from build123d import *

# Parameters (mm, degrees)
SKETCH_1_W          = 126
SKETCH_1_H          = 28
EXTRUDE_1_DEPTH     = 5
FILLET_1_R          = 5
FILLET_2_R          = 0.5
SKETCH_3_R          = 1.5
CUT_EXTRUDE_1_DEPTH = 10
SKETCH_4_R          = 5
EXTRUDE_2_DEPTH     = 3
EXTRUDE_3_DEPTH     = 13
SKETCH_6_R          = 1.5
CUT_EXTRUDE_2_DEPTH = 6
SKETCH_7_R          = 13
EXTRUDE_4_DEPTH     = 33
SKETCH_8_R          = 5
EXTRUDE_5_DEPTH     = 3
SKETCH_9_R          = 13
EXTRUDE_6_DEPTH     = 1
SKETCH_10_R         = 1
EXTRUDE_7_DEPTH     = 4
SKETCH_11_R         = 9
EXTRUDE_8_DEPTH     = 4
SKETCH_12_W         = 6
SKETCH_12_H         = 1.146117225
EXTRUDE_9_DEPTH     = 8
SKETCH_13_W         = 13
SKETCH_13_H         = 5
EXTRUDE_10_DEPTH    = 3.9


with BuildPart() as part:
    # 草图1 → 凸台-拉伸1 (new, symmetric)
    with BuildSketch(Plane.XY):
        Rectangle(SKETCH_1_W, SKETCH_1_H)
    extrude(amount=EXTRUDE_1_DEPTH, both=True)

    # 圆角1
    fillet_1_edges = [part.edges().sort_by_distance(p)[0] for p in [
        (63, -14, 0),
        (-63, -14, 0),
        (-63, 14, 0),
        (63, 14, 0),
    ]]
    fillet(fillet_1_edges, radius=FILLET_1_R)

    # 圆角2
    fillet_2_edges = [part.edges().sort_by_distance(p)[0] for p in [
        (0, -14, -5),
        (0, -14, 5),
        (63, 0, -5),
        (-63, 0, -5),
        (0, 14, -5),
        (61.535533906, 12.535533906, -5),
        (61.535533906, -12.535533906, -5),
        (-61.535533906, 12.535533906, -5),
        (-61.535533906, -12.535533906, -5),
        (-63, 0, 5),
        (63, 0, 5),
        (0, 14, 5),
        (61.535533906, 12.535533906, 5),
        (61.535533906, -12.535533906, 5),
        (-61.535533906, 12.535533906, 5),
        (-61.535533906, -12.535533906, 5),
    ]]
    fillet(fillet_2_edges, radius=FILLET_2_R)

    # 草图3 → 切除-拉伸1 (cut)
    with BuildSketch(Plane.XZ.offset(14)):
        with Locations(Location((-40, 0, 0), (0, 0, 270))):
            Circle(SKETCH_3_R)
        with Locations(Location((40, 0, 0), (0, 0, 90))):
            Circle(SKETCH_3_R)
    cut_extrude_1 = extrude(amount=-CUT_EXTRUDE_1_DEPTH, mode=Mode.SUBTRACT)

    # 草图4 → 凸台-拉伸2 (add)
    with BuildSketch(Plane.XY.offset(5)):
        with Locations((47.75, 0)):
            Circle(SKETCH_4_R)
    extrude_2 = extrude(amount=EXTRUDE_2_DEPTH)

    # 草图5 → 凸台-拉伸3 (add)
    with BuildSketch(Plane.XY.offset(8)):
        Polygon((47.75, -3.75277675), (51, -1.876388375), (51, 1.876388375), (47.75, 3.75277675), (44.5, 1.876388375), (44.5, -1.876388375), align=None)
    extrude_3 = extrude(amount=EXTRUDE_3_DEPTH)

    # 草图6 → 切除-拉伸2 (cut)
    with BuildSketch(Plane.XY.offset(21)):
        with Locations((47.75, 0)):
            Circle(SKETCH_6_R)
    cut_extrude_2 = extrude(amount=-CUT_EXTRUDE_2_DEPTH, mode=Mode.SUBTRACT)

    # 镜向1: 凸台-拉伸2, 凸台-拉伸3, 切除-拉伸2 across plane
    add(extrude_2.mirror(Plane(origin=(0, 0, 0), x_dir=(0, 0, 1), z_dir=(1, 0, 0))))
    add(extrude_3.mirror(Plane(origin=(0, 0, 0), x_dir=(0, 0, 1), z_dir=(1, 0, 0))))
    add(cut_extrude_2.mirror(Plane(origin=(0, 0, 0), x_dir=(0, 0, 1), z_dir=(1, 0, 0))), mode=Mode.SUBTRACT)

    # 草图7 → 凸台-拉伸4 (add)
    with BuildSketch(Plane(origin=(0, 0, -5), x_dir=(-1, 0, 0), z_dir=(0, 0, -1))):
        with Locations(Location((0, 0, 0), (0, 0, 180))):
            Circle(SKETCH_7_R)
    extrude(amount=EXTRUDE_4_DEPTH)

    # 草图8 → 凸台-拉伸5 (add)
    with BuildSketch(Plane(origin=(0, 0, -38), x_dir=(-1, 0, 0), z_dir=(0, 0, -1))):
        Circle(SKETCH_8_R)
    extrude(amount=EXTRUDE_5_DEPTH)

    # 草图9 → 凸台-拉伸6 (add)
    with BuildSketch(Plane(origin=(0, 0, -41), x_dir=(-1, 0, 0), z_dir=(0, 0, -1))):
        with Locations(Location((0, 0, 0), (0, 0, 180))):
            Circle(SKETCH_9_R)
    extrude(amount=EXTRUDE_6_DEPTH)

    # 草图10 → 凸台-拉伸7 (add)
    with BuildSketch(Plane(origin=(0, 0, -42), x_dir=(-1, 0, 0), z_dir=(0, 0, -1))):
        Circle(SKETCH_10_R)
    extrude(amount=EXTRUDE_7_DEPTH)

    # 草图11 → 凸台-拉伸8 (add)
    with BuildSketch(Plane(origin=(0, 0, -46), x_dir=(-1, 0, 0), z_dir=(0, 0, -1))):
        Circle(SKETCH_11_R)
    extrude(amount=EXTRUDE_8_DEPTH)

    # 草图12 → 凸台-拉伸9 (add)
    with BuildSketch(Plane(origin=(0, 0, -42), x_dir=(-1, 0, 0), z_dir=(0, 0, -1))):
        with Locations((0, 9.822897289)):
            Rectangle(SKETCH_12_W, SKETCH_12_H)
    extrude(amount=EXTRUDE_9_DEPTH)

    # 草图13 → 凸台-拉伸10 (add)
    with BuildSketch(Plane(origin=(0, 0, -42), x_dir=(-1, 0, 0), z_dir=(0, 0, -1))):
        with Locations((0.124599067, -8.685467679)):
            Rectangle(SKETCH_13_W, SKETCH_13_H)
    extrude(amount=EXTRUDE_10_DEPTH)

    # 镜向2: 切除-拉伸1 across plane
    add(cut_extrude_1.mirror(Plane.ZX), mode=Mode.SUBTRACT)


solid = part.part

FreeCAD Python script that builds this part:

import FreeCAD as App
import Part
import Sketcher
Q = App.Units.Quantity


def edges_at(feature, points):
    """Names of the edges that pass closest to the given points."""
    edges = feature.Shape.Edges
    near = lambda p: min(range(len(edges)), key=lambda i: edges[i].distToShape(Part.Vertex(*p))[0])
    return sorted({f"Edge{near(p) + 1}" for p in points})


def add_polygon(sketch, points):
    """Adds a closed chain of lines whose ends are joined by coincident constraints."""
    first, n = sketch.GeometryCount, len(points)
    for a, b in zip(points, points[1:] + points[:1]):
        sketch.addGeometry(Part.LineSegment(App.Vector(*a, 0), App.Vector(*b, 0)), False)
    for i in range(n):
        sketch.addConstraint(Sketcher.Constraint("Coincident", first + i, 2, first + (i + 1) % n, 1))

doc = App.newDocument("Part")
body = doc.addObject("PartDesign::Body", "Body")

# Sketch on XY plane
sketch1 = body.newObject("Sketcher::SketchObject", "Sketch")
sketch1.AttachmentSupport = (doc.getObject("XY_Plane"), [""])
sketch1.MapMode = "FlatFace"
add_polygon(sketch1, [(-63, 14), (-63, -14), (63, -14), (63, 14)])  # lines 0-3
sketch1.addConstraint([
    Sketcher.Constraint("Vertical", 0),
    Sketcher.Constraint("Horizontal", 1),
    Sketcher.Constraint("Vertical", 2),
    Sketcher.Constraint("Horizontal", 3),
    Sketcher.Constraint("Symmetric", 0, 2, 2, 2, -1, 1),
    Sketcher.Constraint("DistanceX", 1, 1, 1, 2, Q("126 mm")),
    Sketcher.Constraint("DistanceY", 0, 2, 0, 1, Q("28 mm")),
])
pad1 = body.newObject("PartDesign::Pad", "Pad")
pad1.Profile = sketch1
pad1.Length = 10
pad1.Midplane = True
doc.recompute()

fillet = body.newObject("PartDesign::Fillet", "Fillet")
fillet.Base = (pad1, edges_at(pad1, [
    (63, -14, 0),
    (-63, -14, 0),
    (-63, 14, 0),
    (63, 14, 0),
]))
fillet.Radius = 5
doc.recompute()

fillet2 = body.newObject("PartDesign::Fillet", "Fillet001")
fillet2.Base = (fillet, edges_at(fillet, [
    (0, -14, -5),
    (0, -14, 5),
    (63, 0, -5),
    (-63, 0, -5),
    (0, 14, -5),
    (61.536, 12.536, -5),
    (61.536, -12.536, -5),
    (-61.536, 12.536, -5),
    (-61.536, -12.536, -5),
    (-63, 0, 5),
    (63, 0, 5),
    (0, 14, 5),
    (61.536, 12.536, 5),
    (61.536, -12.536, 5),
    (-61.536, 12.536, 5),
    (-61.536, -12.536, 5),
]))
fillet2.Radius = 0.5

# Sketch on XZ plane
sketch2 = body.newObject("Sketcher::SketchObject", "Sketch001")
sketch2.AttachmentSupport = (doc.getObject("XZ_Plane"), [""])
sketch2.MapMode = "FlatFace"
sketch2.AttachmentOffset = App.Placement(App.Vector(0, 0, 14), App.Rotation())
sketch2.addGeometry([
    Part.Circle(App.Vector(-40, 0, 0), App.Vector(0, 0, 1), 1.5),
    Part.Circle(App.Vector(40, 0, 0), App.Vector(0, 0, 1), 1.5),
], False)
sketch2.addConstraint([
    Sketcher.Constraint("Equal", 0, 1),
    Sketcher.Constraint("Symmetric", 0, 3, 1, 3, -1, 1),
    Sketcher.Constraint("PointOnObject", 0, 3, -1),
    Sketcher.Constraint("Diameter", 0, Q("3 mm")),
    Sketcher.Constraint("DistanceX", 0, 3, -1, 1, Q("40 mm")),
])
pocket1 = body.newObject("PartDesign::Pocket", "Pocket")
pocket1.Profile = sketch2
pocket1.Length = 10

# Sketch on XY plane
sketch3 = body.newObject("Sketcher::SketchObject", "Sketch002")
sketch3.AttachmentSupport = (doc.getObject("XY_Plane"), [""])
sketch3.MapMode = "FlatFace"
sketch3.AttachmentOffset = App.Placement(App.Vector(0, 0, 5), App.Rotation())
sketch3.addGeometry(Part.Circle(App.Vector(47.75, 0, 0), App.Vector(0, 0, 1), 5), False)
sketch3.addConstraint([
    Sketcher.Constraint("PointOnObject", 0, 3, -1),
    Sketcher.Constraint("Diameter", 0, Q("10 mm")),
    Sketcher.Constraint("DistanceX", -1, 1, 0, 3, Q("47.75 mm")),
])
pad2 = body.newObject("PartDesign::Pad", "Pad001")
pad2.Profile = sketch3
pad2.Length = 3

# Sketch on XY plane
sketch4 = body.newObject("Sketcher::SketchObject", "Sketch003")
sketch4.AttachmentSupport = (doc.getObject("XY_Plane"), [""])
sketch4.MapMode = "FlatFace"
sketch4.AttachmentOffset = App.Placement(App.Vector(0, 0, 8), App.Rotation())
add_polygon(sketch4, [(47.75, -3.752777), (51, -1.876388), (51, 1.876388), (47.75, 3.752777), (44.5, 1.876388), (44.5, -1.876388)])  # lines 0-5
sketch4.addConstraint([
    Sketcher.Constraint("Vertical", 1),
    Sketcher.Constraint("Vertical", 4),
    Sketcher.Constraint("Symmetric", 2, 2, 5, 2, -1),
    Sketcher.Constraint("Parallel", 0, 3),
    Sketcher.Constraint("Parallel", 2, 5),
    Sketcher.Constraint("Horizontal", 1, 2, 3, 2),
    Sketcher.Constraint("Horizontal", 0, 2, 4, 2),
    Sketcher.Constraint("Angle", 0, Q("30 deg")),
    Sketcher.Constraint("DistanceX", -1, 1, 0, 2, Q("51 mm")),
    Sketcher.Constraint("DistanceX", -1, 1, 3, 2, Q("44.5 mm")),
    Sketcher.Constraint("DistanceY", 1, 1, 1, 2, Q("3.752777 mm")),
])
pad3 = body.newObject("PartDesign::Pad", "Pad002")
pad3.Profile = sketch4
pad3.Length = 13

# Sketch on XY plane
sketch5 = body.newObject("Sketcher::SketchObject", "Sketch004")
sketch5.AttachmentSupport = (doc.getObject("XY_Plane"), [""])
sketch5.MapMode = "FlatFace"
sketch5.AttachmentOffset = App.Placement(App.Vector(0, 0, 21), App.Rotation())
sketch5.addGeometry(Part.Circle(App.Vector(47.75, 0, 0), App.Vector(0, 0, 1), 1.5), False)
sketch5.addConstraint([
    Sketcher.Constraint("PointOnObject", 0, 3, -1),
    Sketcher.Constraint("Diameter", 0, Q("3 mm")),
    Sketcher.Constraint("DistanceX", -1, 1, 0, 3, Q("47.75 mm")),
])
pocket2 = body.newObject("PartDesign::Pocket", "Pocket001")
pocket2.Profile = sketch5
pocket2.Length = 6
doc.recompute()

mirrored = body.newObject("PartDesign::Mirrored", "Mirrored")
mirrored.Originals = [pad2, pad3, pocket2]
mirrored.MirrorPlane = (doc.getObject("YZ_Plane"), [""])
body.Tip = mirrored

# Sketch on XY plane
sketch6 = body.newObject("Sketcher::SketchObject", "Sketch005")
sketch6.AttachmentSupport = (doc.getObject("XY_Plane"), [""])
sketch6.MapMode = "FlatFace"
sketch6.AttachmentOffset = App.Placement(App.Vector(0, 0, -5), App.Rotation())
sketch6.addGeometry(Part.Circle(App.Vector(0, 0, 0), App.Vector(0, 0, 1), 13), False)
sketch6.addConstraint([
    Sketcher.Constraint("Coincident", 0, 3, -1, 1),
    Sketcher.Constraint("Diameter", 0, Q("26 mm")),
])
pad4 = body.newObject("PartDesign::Pad", "Pad003")
pad4.Profile = sketch6
pad4.Length = 33
pad4.Reversed = True

# Sketch on XY plane
sketch7 = body.newObject("Sketcher::SketchObject", "Sketch006")
sketch7.AttachmentSupport = (doc.getObject("XY_Plane"), [""])
sketch7.MapMode = "FlatFace"
sketch7.AttachmentOffset = App.Placement(App.Vector(0, 0, -38), App.Rotation())
sketch7.addGeometry(Part.Circle(App.Vector(0, 0, 0), App.Vector(0, 0, 1), 5), False)
sketch7.addConstraint([
    Sketcher.Constraint("Coincident", 0, 3, -1, 1),
    Sketcher.Constraint("Diameter", 0, Q("10 mm")),
])
pad5 = body.newObject("PartDesign::Pad", "Pad004")
pad5.Profile = sketch7
pad5.Length = 3
pad5.Reversed = True

# Sketch on XY plane
sketch8 = body.newObject("Sketcher::SketchObject", "Sketch007")
sketch8.AttachmentSupport = (doc.getObject("XY_Plane"), [""])
sketch8.MapMode = "FlatFace"
sketch8.AttachmentOffset = App.Placement(App.Vector(0, 0, -41), App.Rotation())
sketch8.addGeometry(Part.Circle(App.Vector(0, 0, 0), App.Vector(0, 0, 1), 13), False)
sketch8.addConstraint([
    Sketcher.Constraint("Coincident", 0, 3, -1, 1),
    Sketcher.Constraint("Diameter", 0, Q("26 mm")),
])
pad6 = body.newObject("PartDesign::Pad", "Pad005")
pad6.Profile = sketch8
pad6.Length = 1
pad6.Reversed = True

# Sketch on XY plane
sketch9 = body.newObject("Sketcher::SketchObject", "Sketch008")
sketch9.AttachmentSupport = (doc.getObject("XY_Plane"), [""])
sketch9.MapMode = "FlatFace"
sketch9.AttachmentOffset = App.Placement(App.Vector(0, 0, -42), App.Rotation())
sketch9.addGeometry(Part.Circle(App.Vector(0, 0, 0), App.Vector(0, 0, 1), 1), False)
sketch9.addConstraint([
    Sketcher.Constraint("Coincident", 0, 3, -1, 1),
    Sketcher.Constraint("Diameter", 0, Q("2 mm")),
])
pad7 = body.newObject("PartDesign::Pad", "Pad006")
pad7.Profile = sketch9
pad7.Length = 4
pad7.Reversed = True

# Sketch on XY plane
sketch10 = body.newObject("Sketcher::SketchObject", "Sketch009")
sketch10.AttachmentSupport = (doc.getObject("XY_Plane"), [""])
sketch10.MapMode = "FlatFace"
sketch10.AttachmentOffset = App.Placement(App.Vector(0, 0, -46), App.Rotation())
sketch10.addGeometry(Part.Circle(App.Vector(0, 0, 0), App.Vector(0, 0, 1), 9), False)
sketch10.addConstraint([
    Sketcher.Constraint("Coincident", 0, 3, -1, 1),
    Sketcher.Constraint("Diameter", 0, Q("18 mm")),
])
pad8 = body.newObject("PartDesign::Pad", "Pad007")
pad8.Profile = sketch10
pad8.Length = 4
pad8.Reversed = True

# Sketch on XY plane
sketch11 = body.newObject("Sketcher::SketchObject", "Sketch010")
sketch11.AttachmentSupport = (doc.getObject("XY_Plane"), [""])
sketch11.MapMode = "FlatFace"
sketch11.AttachmentOffset = App.Placement(App.Vector(0, 0, -42), App.Rotation())
add_polygon(sketch11, [(3, 10.395956), (3, 9.249839), (-3, 9.249839), (-3, 10.395956)])  # lines 0-3
sketch11.addConstraint([
    Sketcher.Constraint("Vertical", 0),
    Sketcher.Constraint("Horizontal", 1),
    Sketcher.Constraint("Vertical", 2),
    Sketcher.Constraint("Horizontal", 3),
    Sketcher.Constraint("DistanceX", 1, 2, 1, 1, Q("6 mm")),
    Sketcher.Constraint("DistanceX", -1, 1, 0, 2, Q("3 mm")),
    Sketcher.Constraint("DistanceY", 0, 2, 0, 1, Q("1.146117 mm")),
    Sketcher.Constraint("DistanceY", -1, 1, 0, 2, Q("9.249839 mm")),
])
pad9 = body.newObject("PartDesign::Pad", "Pad008")
pad9.Profile = sketch11
pad9.Length = 8
pad9.Reversed = True

# Sketch on XY plane
sketch12 = body.newObject("Sketcher::SketchObject", "Sketch011")
sketch12.AttachmentSupport = (doc.getObject("XY_Plane"), [""])
sketch12.MapMode = "FlatFace"
sketch12.AttachmentOffset = App.Placement(App.Vector(0, 0, -42), App.Rotation())
add_polygon(sketch12, [(6.375401, -6.185468), (6.375401, -11.185468), (-6.624599, -11.185468), (-6.624599, -6.185468)])  # lines 0-3
sketch12.addConstraint([
    Sketcher.Constraint("Vertical", 0),
    Sketcher.Constraint("Horizontal", 1),
    Sketcher.Constraint("Vertical", 2),
    Sketcher.Constraint("Horizontal", 3),
    Sketcher.Constraint("DistanceX", 1, 2, 1, 1, Q("13 mm")),
    Sketcher.Constraint("DistanceY", 0, 2, 0, 1, Q("5 mm")),
    Sketcher.Constraint("DistanceX", -1, 1, 0, 2, Q("6.375401 mm")),
    Sketcher.Constraint("DistanceY", 0, 2, -1, 1, Q("11.185468 mm")),
])
pad10 = body.newObject("PartDesign::Pad", "Pad009")
pad10.Profile = sketch12
pad10.Length = 3.9
pad10.Reversed = True
doc.recompute()

mirrored2 = body.newObject("PartDesign::Mirrored", "Mirrored001")
mirrored2.Originals = [pocket1]
mirrored2.MirrorPlane = (doc.getObject("XZ_Plane"), [""])
body.Tip = mirrored2

doc.recompute()
